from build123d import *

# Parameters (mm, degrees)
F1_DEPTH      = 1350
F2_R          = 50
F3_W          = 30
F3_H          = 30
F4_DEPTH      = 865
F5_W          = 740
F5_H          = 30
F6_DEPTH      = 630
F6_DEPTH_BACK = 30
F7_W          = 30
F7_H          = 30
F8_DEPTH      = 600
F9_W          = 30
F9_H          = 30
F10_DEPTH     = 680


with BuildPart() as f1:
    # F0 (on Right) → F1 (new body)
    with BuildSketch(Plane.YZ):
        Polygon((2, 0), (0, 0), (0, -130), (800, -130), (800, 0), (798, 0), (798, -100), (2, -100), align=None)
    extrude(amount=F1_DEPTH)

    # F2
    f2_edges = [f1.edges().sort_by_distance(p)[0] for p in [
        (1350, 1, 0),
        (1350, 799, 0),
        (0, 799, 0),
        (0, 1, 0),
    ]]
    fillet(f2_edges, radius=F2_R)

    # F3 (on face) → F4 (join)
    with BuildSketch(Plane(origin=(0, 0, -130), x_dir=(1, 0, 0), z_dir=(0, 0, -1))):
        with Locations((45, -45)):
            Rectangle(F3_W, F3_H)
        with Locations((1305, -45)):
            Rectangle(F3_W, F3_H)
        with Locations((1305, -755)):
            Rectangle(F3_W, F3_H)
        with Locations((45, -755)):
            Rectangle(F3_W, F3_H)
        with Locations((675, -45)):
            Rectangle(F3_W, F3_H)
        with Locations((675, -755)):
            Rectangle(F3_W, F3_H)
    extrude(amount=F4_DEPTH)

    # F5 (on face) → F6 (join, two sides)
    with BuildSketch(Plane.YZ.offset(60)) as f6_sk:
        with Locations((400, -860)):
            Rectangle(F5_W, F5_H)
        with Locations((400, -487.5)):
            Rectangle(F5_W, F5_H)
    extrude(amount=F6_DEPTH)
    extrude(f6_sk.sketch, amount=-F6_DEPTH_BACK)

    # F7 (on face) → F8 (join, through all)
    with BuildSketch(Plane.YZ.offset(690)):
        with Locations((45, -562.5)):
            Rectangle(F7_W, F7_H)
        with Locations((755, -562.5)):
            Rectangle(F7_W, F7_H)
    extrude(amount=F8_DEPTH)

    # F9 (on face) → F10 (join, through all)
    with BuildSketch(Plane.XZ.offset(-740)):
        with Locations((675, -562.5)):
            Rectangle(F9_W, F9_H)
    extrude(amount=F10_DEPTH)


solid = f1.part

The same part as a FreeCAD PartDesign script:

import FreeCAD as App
import Part
import Sketcher
from FreeCAD import Vector


def edges_at(feature, points):
    """Names of the edges that pass closest to the given points."""
    edges = feature.Shape.Edges
    near = lambda p: min(range(len(edges)), key=lambda i: edges[i].distToShape(Part.Vertex(*p))[0])
    return sorted({f"Edge{near(p) + 1}" for p in points})

doc = App.newDocument("Part")
params = doc.addObject("Spreadsheet::Sheet", "Params")
for row, (alias, value) in enumerate([
    ("sketch1_width", "2 mm"),
    ("sketch1_width2", "800 mm"),
    ("sketch1_height", "130 mm"),
    ("sketch1_height2", "100 mm"),
    ("pad1_length", "1350 mm"),
    ("fillet_radius", "50 mm"),
    ("sketch2_width", "30 mm"),
    ("pad2_length", "865 mm"),
    ("sketch3_width", "740 mm"),
    ("sketch3_height", "30 mm"),
    ("pad3_length", "630 mm"),
    ("pad3_length2", "30 mm"),
    ("sketch4_width", "30 mm"),
    ("pad4_length", "600 mm"),
    ("sketch5_width", "30 mm"),
], start=1):
    params.set(f"A{row}", alias)
    params.set(f"B{row}", "=" + value)
    params.setAlias(f"B{row}", alias)

body = doc.addObject("PartDesign::Body", "Body")

# Sketch on YZ plane
sketch1 = body.newObject("Sketcher::SketchObject", "Sketch")
sketch1.AttachmentSupport = (doc.getObject("YZ_Plane"), [""])
sketch1.MapMode = "FlatFace"
sketch1.addGeometry([
    Part.LineSegment(Vector(2, 0, 0), Vector(0, 0, 0)),  # 0
    Part.LineSegment(Vector(0, 0, 0), Vector(0, -130, 0)),  # 1
    Part.LineSegment(Vector(0, -130, 0), Vector(800, -130, 0)),  # 2
    Part.LineSegment(Vector(800, -130, 0), Vector(800, 0, 0)),  # 3
    Part.LineSegment(Vector(800, 0, 0), Vector(798, 0, 0)),  # 4
    Part.LineSegment(Vector(798, 0, 0), Vector(798, -100, 0)),  # 5
    Part.LineSegment(Vector(798, -100, 0), Vector(2, -100, 0)),  # 6
    Part.LineSegment(Vector(2, -100, 0), Vector(2, 0, 0)),  # 7
], False)
sketch1.addConstraint([
    Sketcher.Constraint("Coincident", 0, 2, 1, 1),
    Sketcher.Constraint("Coincident", 1, 2, 2, 1),
    Sketcher.Constraint("Coincident", 2, 2, 3, 1),
    Sketcher.Constraint("Coincident", 3, 2, 4, 1),
    Sketcher.Constraint("Coincident", 4, 2, 5, 1),
    Sketcher.Constraint("Coincident", 5, 2, 6, 1),
    Sketcher.Constraint("Coincident", 6, 2, 7, 1),
    Sketcher.Constraint("Coincident", 7, 2, 0, 1),
    Sketcher.Constraint("Horizontal", 0),
    Sketcher.Constraint("Vertical", 1),
    Sketcher.Constraint("Horizontal", 2),
    Sketcher.Constraint("Vertical", 3),
    Sketcher.Constraint("Horizontal", 4),
    Sketcher.Constraint("Vertical", 5),
    Sketcher.Constraint("Horizontal", 6),
    Sketcher.Constraint("Vertical", 7),
    Sketcher.Constraint("Coincident", 0, 2, -1, 1),
    Sketcher.Constraint("PointOnObject", 3, 2, -1),
    Sketcher.Constraint("Equal", 0, 4),
    Sketcher.Constraint("DistanceX", 0, 2, 0, 1, 2.0),
    Sketcher.Constraint("DistanceX", 2, 1, 2, 2, 800.0),
    Sketcher.Constraint("DistanceY", 1, 2, 1, 1, 130.0),
    Sketcher.Constraint("DistanceY", 5, 2, 5, 1, 100.0),
])
sketch1.setExpression("Constraints[19]", "Params.sketch1_width")
sketch1.setExpression("Constraints[20]", "Params.sketch1_width2")
sketch1.setExpression("Constraints[21]", "Params.sketch1_height")
sketch1.setExpression("Constraints[22]", "Params.sketch1_height2")
pad1 = body.newObject("PartDesign::Pad", "Pad")
pad1.Profile = sketch1
pad1.setExpression("Length", "Params.pad1_length")
doc.recompute()

fillet = body.newObject("PartDesign::Fillet", "Fillet")
fillet.Base = (pad1, edges_at(pad1, [
    (1350, 1, 0),
    (1350, 799, 0),
    (0, 799, 0),
    (0, 1, 0),
]))
fillet.setExpression("Radius", "Params.fillet_radius")

# Sketch on XY plane
sketch2 = body.newObject("Sketcher::SketchObject", "Sketch001")
sketch2.AttachmentSupport = (doc.getObject("XY_Plane"), [""])
sketch2.MapMode = "FlatFace"
sketch2.AttachmentOffset = App.Placement(Vector(0, 0, -130), App.Rotation())
sketch2.addGeometry([
    Part.LineSegment(Vector(30, 30, 0), Vector(30, 60, 0)),  # 0
    Part.LineSegment(Vector(30, 60, 0), Vector(60, 60, 0)),  # 1
    Part.LineSegment(Vector(60, 60, 0), Vector(60, 30, 0)),  # 2
    Part.LineSegment(Vector(60, 30, 0), Vector(30, 30, 0)),  # 3
    Part.LineSegment(Vector(1290, 30, 0), Vector(1290, 60, 0)),  # 4
    Part.LineSegment(Vector(1290, 60, 0), Vector(1320, 60, 0)),  # 5
    Part.LineSegment(Vector(1320, 60, 0), Vector(1320, 30, 0)),  # 6
    Part.LineSegment(Vector(1320, 30, 0), Vector(1290, 30, 0)),  # 7
    Part.LineSegment(Vector(1290, 740, 0), Vector(1290, 770, 0)),  # 8
    Part.LineSegment(Vector(1290, 770, 0), Vector(1320, 770, 0)),  # 9
    Part.LineSegment(Vector(1320, 770, 0), Vector(1320, 740, 0)),  # 10
    Part.LineSegment(Vector(1320, 740, 0), Vector(1290, 740, 0)),  # 11
    Part.LineSegment(Vector(30, 740, 0), Vector(30, 770, 0)),  # 12
    Part.LineSegment(Vector(30, 770, 0), Vector(60, 770, 0)),  # 13
    Part.LineSegment(Vector(60, 770, 0), Vector(60, 740, 0)),  # 14
    Part.LineSegment(Vector(60, 740, 0), Vector(30, 740, 0)),  # 15
    Part.LineSegment(Vector(660, 30, 0), Vector(660, 60, 0)),  # 16
    Part.LineSegment(Vector(660, 60, 0), Vector(690, 60, 0)),  # 17
    Part.LineSegment(Vector(690, 60, 0), Vector(690, 30, 0)),  # 18
    Part.LineSegment(Vector(690, 30, 0), Vector(660, 30, 0)),  # 19
    Part.LineSegment(Vector(660, 740, 0), Vector(660, 770, 0)),  # 20
    Part.LineSegment(Vector(660, 770, 0), Vector(690, 770, 0)),  # 21
    Part.LineSegment(Vector(690, 770, 0), Vector(690, 740, 0)),  # 22
    Part.LineSegment(Vector(690, 740, 0), Vector(660, 740, 0)),  # 23
], False)
sketch2.addConstraint([
    Sketcher.Constraint("Coincident", 0, 2, 1, 1),
    Sketcher.Constraint("Coincident", 1, 2, 2, 1),
    Sketcher.Constraint("Coincident", 2, 2, 3, 1),
    Sketcher.Constraint("Coincident", 3, 2, 0, 1),
    Sketcher.Constraint("Coincident", 4, 2, 5, 1),
    Sketcher.Constraint("Coincident", 5, 2, 6, 1),
    Sketcher.Constraint("Coincident", 6, 2, 7, 1),
    Sketcher.Constraint("Coincident", 7, 2, 4, 1),
    Sketcher.Constraint("Coincident", 8, 2, 9, 1),
    Sketcher.Constraint("Coincident", 9, 2, 10, 1),
    Sketcher.Constraint("Coincident", 10, 2, 11, 1),
    Sketcher.Constraint("Coincident", 11, 2, 8, 1),
    Sketcher.Constraint("Coincident", 12, 2, 13, 1),
    Sketcher.Constraint("Coincident", 13, 2, 14, 1),
    Sketcher.Constraint("Coincident", 14, 2, 15, 1),
    Sketcher.Constraint("Coincident", 15, 2, 12, 1),
    Sketcher.Constraint("Coincident", 16, 2, 17, 1),
    Sketcher.Constraint("Coincident", 17, 2, 18, 1),
    Sketcher.Constraint("Coincident", 18, 2, 19, 1),
    Sketcher.Constraint("Coincident", 19, 2, 16, 1),
    Sketcher.Constraint("Coincident", 20, 2, 21, 1),
    Sketcher.Constraint("Coincident", 21, 2, 22, 1),
    Sketcher.Constraint("Coincident", 22, 2, 23, 1),
    Sketcher.Constraint("Coincident", 23, 2, 20, 1),
    Sketcher.Constraint("Vertical", 0),
    Sketcher.Constraint("Horizontal", 1),
    Sketcher.Constraint("Vertical", 2),
    Sketcher.Constraint("Horizontal", 3),
    Sketcher.Constraint("Vertical", 4),
    Sketcher.Constraint("Horizontal", 5),
    Sketcher.Constraint("Vertical", 6),
    Sketcher.Constraint("Horizontal", 7),
    Sketcher.Constraint("Vertical", 8),
    Sketcher.Constraint("Horizontal", 9),
    Sketcher.Constraint("Vertical", 10),
    Sketcher.Constraint("Horizontal", 11),
    Sketcher.Constraint("Vertical", 12),
    Sketcher.Constraint("Horizontal", 13),
    Sketcher.Constraint("Vertical", 14),
    Sketcher.Constraint("Horizontal", 15),
    Sketcher.Constraint("Vertical", 16),
    Sketcher.Constraint("Horizontal", 17),
    Sketcher.Constraint("Vertical", 18),
    Sketcher.Constraint("Horizontal", 19),
    Sketcher.Constraint("Vertical", 20),
    Sketcher.Constraint("Horizontal", 21),
    Sketcher.Constraint("Vertical", 22),
    Sketcher.Constraint("Horizontal", 23),
    Sketcher.Constraint("Horizontal", 1, 2, 4, 2),
    Sketcher.Constraint("Horizontal", 3, 2, 6, 2),
    Sketcher.Constraint("Horizontal", 9, 2, 12, 2),
    Sketcher.Constraint("Horizontal", 11, 2, 14, 2),
    Sketcher.Constraint("Horizontal", 5, 2, 16, 2),
    Sketcher.Constraint("Horizontal", 7, 2, 18, 2),
    Sketcher.Constraint("Horizontal", 13, 2, 20, 2),
    Sketcher.Constraint("Horizontal", 15, 2, 22, 2),
    Sketcher.Constraint("Vertical", 7, 2, 8, 2),
    Sketcher.Constraint("Vertical", 6, 2, 9, 2),
    Sketcher.Constraint("Vertical", 3, 2, 12, 2),
    Sketcher.Constraint("Vertical", 2, 2, 13, 2),
    Sketcher.Constraint("Vertical", 19, 2, 20, 2),
    Sketcher.Constraint("Vertical", 18, 2, 21, 2),
    Sketcher.Constraint("Equal", 3, 5),
    Sketcher.Constraint("Equal", 15, 17),
    Sketcher.Constraint("Equal", 23, 0),
    Sketcher.Constraint("Equal", 6, 8),
    Sketcher.Constraint("DistanceX", 1, 1, 1, 2, 30.0),
    Sketcher.Constraint("DistanceX", -1, 1, 0, 2, 30.0),
    Sketcher.Constraint("DistanceY", -1, 1, 0, 2, 60.0),
    Sketcher.Constraint("DistanceX", -1, 1, 4, 2, 1290.0),
    Sketcher.Constraint("DistanceY", -1, 1, 8, 2, 770.0),
    Sketcher.Constraint("DistanceX", -1, 1, 16, 2, 660.0),
])
sketch2.setExpression("Constraints[66]", "Params.sketch2_width")
pad2 = body.newObject("PartDesign::Pad", "Pad001")
pad2.Profile = sketch2
pad2.setExpression("Length", "Params.pad2_length")
pad2.Reversed = True

# Sketch on YZ plane
sketch3 = body.newObject("Sketcher::SketchObject", "Sketch002")
sketch3.AttachmentSupport = (doc.getObject("YZ_Plane"), [""])
sketch3.MapMode = "FlatFace"
sketch3.AttachmentOffset = App.Placement(Vector(0, 0, 60), App.Rotation())
sketch3.addGeometry([
    Part.LineSegment(Vector(30, -845, 0), Vector(30, -875, 0)),  # 0
    Part.LineSegment(Vector(30, -875, 0), Vector(770, -875, 0)),  # 1
    Part.LineSegment(Vector(770, -875, 0), Vector(770, -845, 0)),  # 2
    Part.LineSegment(Vector(770, -845, 0), Vector(30, -845, 0)),  # 3
    Part.LineSegment(Vector(30, -472, 0), Vector(30, -502, 0)),  # 4
    Part.LineSegment(Vector(30, -502, 0), Vector(770, -502, 0)),  # 5
    Part.LineSegment(Vector(770, -502, 0), Vector(770, -472, 0)),  # 6
    Part.LineSegment(Vector(770, -472, 0), Vector(30, -472, 0)),  # 7
], False)
sketch3.addConstraint([
    Sketcher.Constraint("Coincident", 0, 2, 1, 1),
    Sketcher.Constraint("Coincident", 1, 2, 2, 1),
    Sketcher.Constraint("Coincident", 2, 2, 3, 1),
    Sketcher.Constraint("Coincident", 3, 2, 0, 1),
    Sketcher.Constraint("Coincident", 4, 2, 5, 1),
    Sketcher.Constraint("Coincident", 5, 2, 6, 1),
    Sketcher.Constraint("Coincident", 6, 2, 7, 1),
    Sketcher.Constraint("Coincident", 7, 2, 4, 1),
    Sketcher.Constraint("Vertical", 0),
    Sketcher.Constraint("Horizontal", 1),
    Sketcher.Constraint("Vertical", 2),
    Sketcher.Constraint("Horizontal", 3),
    Sketcher.Constraint("Vertical", 4),
    Sketcher.Constraint("Horizontal", 5),
    Sketcher.Constraint("Vertical", 6),
    Sketcher.Constraint("Horizontal", 7),
    Sketcher.Constraint("Vertical", 3, 2, 4, 2),
    Sketcher.Constraint("Vertical", 2, 2, 5, 2),
    Sketcher.Constraint("Equal", 2, 4),
    Sketcher.Constraint("DistanceX", 1, 1, 1, 2, 740.0),
    Sketcher.Constraint("DistanceY", 0, 2, 0, 1, 30.0),
    Sketcher.Constraint("DistanceX", -1, 1, 0, 2, 30.0),
    Sketcher.Constraint("DistanceY", 0, 2, -1, 1, 875.0),
    Sketcher.Constraint("DistanceY", 4, 2, -1, 1, 502.5),
])
sketch3.setExpression("Constraints[19]", "Params.sketch3_width")
sketch3.setExpression("Constraints[20]", "Params.sketch3_height")
pad3 = body.newObject("PartDesign::Pad", "Pad002")
pad3.Profile = sketch3
pad3.Type = "TwoLengths"
pad3.setExpression("Length", "Params.pad3_length")
pad3.setExpression("Length2", "Params.pad3_length2")

# Sketch on YZ plane
sketch4 = body.newObject("Sketcher::SketchObject", "Sketch003")
sketch4.AttachmentSupport = (doc.getObject("YZ_Plane"), [""])
sketch4.MapMode = "FlatFace"
sketch4.AttachmentOffset = App.Placement(Vector(0, 0, 690), App.Rotation())
sketch4.addGeometry([
    Part.LineSegment(Vector(30, -548, 0), Vector(30, -578, 0)),  # 0
    Part.LineSegment(Vector(30, -578, 0), Vector(60, -578, 0)),  # 1
    Part.LineSegment(Vector(60, -578, 0), Vector(60, -548, 0)),  # 2
    Part.LineSegment(Vector(60, -548, 0), Vector(30, -548, 0)),  # 3
    Part.LineSegment(Vector(740, -548, 0), Vector(740, -578, 0)),  # 4
    Part.LineSegment(Vector(740, -578, 0), Vector(770, -578, 0)),  # 5
    Part.LineSegment(Vector(770, -578, 0), Vector(770, -548, 0)),  # 6
    Part.LineSegment(Vector(770, -548, 0), Vector(740, -548, 0)),  # 7
], False)
sketch4.addConstraint([
    Sketcher.Constraint("Coincident", 0, 2, 1, 1),
    Sketcher.Constraint("Coincident", 1, 2, 2, 1),
    Sketcher.Constraint("Coincident", 2, 2, 3, 1),
    Sketcher.Constraint("Coincident", 3, 2, 0, 1),
    Sketcher.Constraint("Coincident", 4, 2, 5, 1),
    Sketcher.Constraint("Coincident", 5, 2, 6, 1),
    Sketcher.Constraint("Coincident", 6, 2, 7, 1),
    Sketcher.Constraint("Coincident", 7, 2, 4, 1),
    Sketcher.Constraint("Vertical", 0),
    Sketcher.Constraint("Horizontal", 1),
    Sketcher.Constraint("Vertical", 2),
    Sketcher.Constraint("Horizontal", 3),
    Sketcher.Constraint("Vertical", 4),
    Sketcher.Constraint("Horizontal", 5),
    Sketcher.Constraint("Vertical", 6),
    Sketcher.Constraint("Horizontal", 7),
    Sketcher.Constraint("Horizontal", 1, 2, 4, 2),
    Sketcher.Constraint("Horizontal", 3, 2, 6, 2),
    Sketcher.Constraint("Equal", 3, 5),
    Sketcher.Constraint("Equal", 7, 0),
    Sketcher.Constraint("DistanceX", 1, 1, 1, 2, 30.0),
    Sketcher.Constraint("DistanceX", -1, 1, 0, 2, 30.0),
    Sketcher.Constraint("DistanceX", -1, 1, 4, 2, 740.0),
    Sketcher.Constraint("DistanceY", 0, 2, -1, 1, 577.5),
])
sketch4.setExpression("Constraints[20]", "Params.sketch4_width")
pad4 = body.newObject("PartDesign::Pad", "Pad003")
pad4.Profile = sketch4
pad4.setExpression("Length", "Params.pad4_length")

# Sketch on XZ plane
sketch5 = body.newObject("Sketcher::SketchObject", "Sketch004")
sketch5.AttachmentSupport = (doc.getObject("XZ_Plane"), [""])
sketch5.MapMode = "FlatFace"
sketch5.AttachmentOffset = App.Placement(Vector(0, 0, -740), App.Rotation())
sketch5.addGeometry([
    Part.LineSegment(Vector(660, -548, 0), Vector(660, -578, 0)),
    Part.LineSegment(Vector(660, -578, 0), Vector(690, -578, 0)),
    Part.LineSegment(Vector(690, -578, 0), Vector(690, -548, 0)),
    Part.LineSegment(Vector(690, -548, 0), Vector(660, -548, 0)),
], False)
sketch5.addConstraint([
    Sketcher.Constraint("Coincident", 0, 2, 1, 1),
    Sketcher.Constraint("Coincident", 1, 2, 2, 1),
    Sketcher.Constraint("Coincident", 2, 2, 3, 1),
    Sketcher.Constraint("Coincident", 3, 2, 0, 1),
    Sketcher.Constraint("Vertical", 0),
    Sketcher.Constraint("Horizontal", 1),
    Sketcher.Constraint("Vertical", 2),
    Sketcher.Constraint("Horizontal", 3),
    Sketcher.Constraint("Equal", 3, 0),
    Sketcher.Constraint("DistanceX", 1, 1, 1, 2, 30.0),
    Sketcher.Constraint("DistanceX", -1, 1, 0, 2, 660.0),
    Sketcher.Constraint("DistanceY", 0, 2, -1, 1, 577.5),
])
sketch5.setExpression("Constraints[9]", "Params.sketch5_width")
pad5 = body.newObject("PartDesign::Pad", "Pad004")
pad5.Profile = sketch5
pad5.Type = "UpToLast"

doc.recompute()
